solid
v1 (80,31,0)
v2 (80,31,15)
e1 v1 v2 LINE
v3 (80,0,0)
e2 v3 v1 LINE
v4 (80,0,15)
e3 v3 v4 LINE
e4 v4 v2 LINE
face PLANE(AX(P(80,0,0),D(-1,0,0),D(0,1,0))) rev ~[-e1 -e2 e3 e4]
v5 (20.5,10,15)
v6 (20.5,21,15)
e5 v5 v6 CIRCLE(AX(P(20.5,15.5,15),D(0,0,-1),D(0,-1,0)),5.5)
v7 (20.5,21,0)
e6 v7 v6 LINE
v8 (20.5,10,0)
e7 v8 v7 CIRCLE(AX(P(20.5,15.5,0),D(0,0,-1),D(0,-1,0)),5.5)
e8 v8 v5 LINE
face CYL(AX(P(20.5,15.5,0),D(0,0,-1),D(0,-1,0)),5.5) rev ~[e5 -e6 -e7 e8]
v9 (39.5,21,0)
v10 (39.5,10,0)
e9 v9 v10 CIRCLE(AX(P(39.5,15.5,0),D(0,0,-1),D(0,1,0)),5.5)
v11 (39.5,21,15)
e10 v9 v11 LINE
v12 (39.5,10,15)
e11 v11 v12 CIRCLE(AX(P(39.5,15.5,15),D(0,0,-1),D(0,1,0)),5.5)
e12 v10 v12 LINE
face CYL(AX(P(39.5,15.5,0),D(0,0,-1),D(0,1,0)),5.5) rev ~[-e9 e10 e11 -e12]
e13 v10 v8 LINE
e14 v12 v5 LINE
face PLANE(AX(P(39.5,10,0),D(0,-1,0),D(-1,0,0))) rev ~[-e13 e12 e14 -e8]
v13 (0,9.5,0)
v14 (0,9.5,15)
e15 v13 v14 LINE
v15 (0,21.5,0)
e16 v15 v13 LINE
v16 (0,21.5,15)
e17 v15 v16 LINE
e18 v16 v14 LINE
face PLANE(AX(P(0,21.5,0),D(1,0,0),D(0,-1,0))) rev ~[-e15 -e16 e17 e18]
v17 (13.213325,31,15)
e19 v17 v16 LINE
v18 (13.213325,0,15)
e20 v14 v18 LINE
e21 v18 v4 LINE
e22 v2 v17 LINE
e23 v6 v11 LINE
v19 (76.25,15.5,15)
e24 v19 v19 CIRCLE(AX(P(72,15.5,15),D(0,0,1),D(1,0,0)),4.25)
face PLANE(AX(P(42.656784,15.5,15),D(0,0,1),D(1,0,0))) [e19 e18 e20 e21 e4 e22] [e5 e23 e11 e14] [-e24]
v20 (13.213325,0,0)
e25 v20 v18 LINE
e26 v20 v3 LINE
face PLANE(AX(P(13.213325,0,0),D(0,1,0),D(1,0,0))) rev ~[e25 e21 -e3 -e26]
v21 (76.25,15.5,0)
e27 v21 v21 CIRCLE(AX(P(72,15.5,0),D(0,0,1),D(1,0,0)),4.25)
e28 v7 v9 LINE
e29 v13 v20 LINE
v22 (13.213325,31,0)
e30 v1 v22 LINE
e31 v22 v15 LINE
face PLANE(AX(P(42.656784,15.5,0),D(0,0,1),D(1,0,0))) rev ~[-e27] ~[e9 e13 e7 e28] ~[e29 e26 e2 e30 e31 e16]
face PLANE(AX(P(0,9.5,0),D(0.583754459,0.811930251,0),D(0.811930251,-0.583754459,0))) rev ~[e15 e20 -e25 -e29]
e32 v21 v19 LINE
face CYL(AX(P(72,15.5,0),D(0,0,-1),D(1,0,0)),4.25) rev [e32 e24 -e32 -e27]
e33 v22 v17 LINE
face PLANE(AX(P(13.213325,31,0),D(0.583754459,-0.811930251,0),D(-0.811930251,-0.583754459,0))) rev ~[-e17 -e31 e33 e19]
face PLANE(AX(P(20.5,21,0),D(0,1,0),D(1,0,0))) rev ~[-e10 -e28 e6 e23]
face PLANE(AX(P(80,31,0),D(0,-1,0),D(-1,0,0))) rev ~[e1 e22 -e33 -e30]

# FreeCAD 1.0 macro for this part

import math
import FreeCAD as App
import Part
import Sketcher

V = App.Vector


def add_polygon(sketch, points):
    """Adds a closed chain of lines whose ends are joined by coincident constraints."""
    first, n = sketch.GeometryCount, len(points)
    for a, b in zip(points, points[1:] + points[:1]):
        sketch.addGeometry(Part.LineSegment(App.Vector(*a, 0), App.Vector(*b, 0)), False)
    for i in range(n):
        sketch.addConstraint(Sketcher.Constraint("Coincident", first + i, 2, first + (i + 1) % n, 1))

doc = App.newDocument("Part")
params = doc.addObject("Spreadsheet::Sheet", "Params")
for row, (alias, value) in enumerate([
    ("sketch1_diameter", "8.5 mm"),
    ("sketch1_radius", "5.5 mm"),
    ("sketch1_width", "19 mm"),
    ("sketch1_height", "31 mm"),
    ("sketch1_height2", "12 mm"),
    ("pad1_length", "15 mm"),
], start=1):
    params.set(f"A{row}", alias)
    params.set(f"B{row}", "=" + value)
    params.setAlias(f"B{row}", alias)

body = doc.addObject("PartDesign::Body", "Body")

# Sketch on XY plane
sketch1 = body.newObject("Sketcher::SketchObject", "Sketch")
sketch1.AttachmentSupport = (doc.getObject("XY_Plane"), [""])
sketch1.MapMode = "FlatFace"
add_polygon(sketch1, [(13.2, 0), (80, 0), (80, 31), (13.2, 31), (0, 21.5), (0, 9.5)])  # lines 0-5
sketch1.addGeometry(Part.ArcOfCircle(Part.Circle(V(20.5, 15.5, 0), V(0, 0, 1), 5.5), math.radians(90), math.radians(270)), False)  # 6
sketch1.addGeometry(Part.LineSegment(V(20.5, 21, 0), V(39.5, 21, 0)), False)  # 7
sketch1.addGeometry(Part.ArcOfCircle(Part.Circle(V(39.5, 15.5, 0), V(0, 0, 1), 5.5), math.radians(-90), math.radians(90)), False)  # 8
sketch1.addGeometry(Part.LineSegment(V(39.5, 10, 0), V(20.5, 10, 0)), False)  # 9
sketch1.addGeometry(Part.Circle(V(72, 15.5, 0), V(0, 0, 1), 4.2), False)  # 10
sketch1.addConstraint(Sketcher.Constraint("Tangent", 6, 1, 7, 1))
sketch1.addConstraint(Sketcher.Constraint("Tangent", 7, 2, 8, 2))
sketch1.addConstraint(Sketcher.Constraint("Tangent", 8, 1, 9, 1))
sketch1.addConstraint(Sketcher.Constraint("Tangent", 9, 2, 6, 2))
sketch1.addConstraint(Sketcher.Constraint("Horizontal", 0))
sketch1.addConstraint(Sketcher.Constraint("Vertical", 1))
sketch1.addConstraint(Sketcher.Constraint("Horizontal", 2))
sketch1.addConstraint(Sketcher.Constraint("Vertical", 4))
sketch1.addConstraint(Sketcher.Constraint("Horizontal", 7))
sketch1.addConstraint(Sketcher.Constraint("Horizontal", 9))
sketch1.addConstraint(Sketcher.Constraint("PointOnObject", 0, 2, -1))
sketch1.addConstraint(Sketcher.Constraint("PointOnObject", 3, 2, -2))
sketch1.addConstraint(Sketcher.Constraint("Horizontal", 8, 3, 10, 3))
sketch1.addConstraint(Sketcher.Constraint("Vertical", 2, 2, 5, 2))
sketch1.addConstraint(Sketcher.Constraint("Equal", 3, 5))
sketch1.addConstraint(Sketcher.Constraint("Diameter", 10, 8.5))
sketch1.addConstraint(Sketcher.Constraint("Radius", 6, 5.5))
sketch1.addConstraint(Sketcher.Constraint("DistanceX", 7, 1, 7, 2, 19.0))
sketch1.addConstraint(Sketcher.Constraint("DistanceY", 1, 1, 1, 2, 31.0))
sketch1.addConstraint(Sketcher.Constraint("DistanceY", 4, 2, 4, 1, 12.0))
sketch1.addConstraint(Sketcher.Constraint("DistanceX", -1, 1, 10, 3, 72.0))
sketch1.addConstraint(Sketcher.Constraint("DistanceX", -1, 1, 0, 2, 80.0))
sketch1.addConstraint(Sketcher.Constraint("DistanceY", -1, 1, 6, 1, 21.0))
sketch1.addConstraint(Sketcher.Constraint("DistanceX", -1, 1, 6, 3, 20.5))
sketch1.addConstraint(Sketcher.Constraint("DistanceX", 0, 1, 0, 2, 66.786675))
sketch1.setExpression("Constraints[21]", "Params.sketch1_diameter")
sketch1.setExpression("Constraints[22]", "Params.sketch1_radius")
sketch1.setExpression("Constraints[23]", "Params.sketch1_width")
sketch1.setExpression("Constraints[24]", "Params.sketch1_height")
sketch1.setExpression("Constraints[25]", "Params.sketch1_height2")
pad1 = body.newObject("PartDesign::Pad", "Pad")
pad1.Profile = sketch1
pad1.setExpression("Length", "Params.pad1_length")

doc.recompute()
